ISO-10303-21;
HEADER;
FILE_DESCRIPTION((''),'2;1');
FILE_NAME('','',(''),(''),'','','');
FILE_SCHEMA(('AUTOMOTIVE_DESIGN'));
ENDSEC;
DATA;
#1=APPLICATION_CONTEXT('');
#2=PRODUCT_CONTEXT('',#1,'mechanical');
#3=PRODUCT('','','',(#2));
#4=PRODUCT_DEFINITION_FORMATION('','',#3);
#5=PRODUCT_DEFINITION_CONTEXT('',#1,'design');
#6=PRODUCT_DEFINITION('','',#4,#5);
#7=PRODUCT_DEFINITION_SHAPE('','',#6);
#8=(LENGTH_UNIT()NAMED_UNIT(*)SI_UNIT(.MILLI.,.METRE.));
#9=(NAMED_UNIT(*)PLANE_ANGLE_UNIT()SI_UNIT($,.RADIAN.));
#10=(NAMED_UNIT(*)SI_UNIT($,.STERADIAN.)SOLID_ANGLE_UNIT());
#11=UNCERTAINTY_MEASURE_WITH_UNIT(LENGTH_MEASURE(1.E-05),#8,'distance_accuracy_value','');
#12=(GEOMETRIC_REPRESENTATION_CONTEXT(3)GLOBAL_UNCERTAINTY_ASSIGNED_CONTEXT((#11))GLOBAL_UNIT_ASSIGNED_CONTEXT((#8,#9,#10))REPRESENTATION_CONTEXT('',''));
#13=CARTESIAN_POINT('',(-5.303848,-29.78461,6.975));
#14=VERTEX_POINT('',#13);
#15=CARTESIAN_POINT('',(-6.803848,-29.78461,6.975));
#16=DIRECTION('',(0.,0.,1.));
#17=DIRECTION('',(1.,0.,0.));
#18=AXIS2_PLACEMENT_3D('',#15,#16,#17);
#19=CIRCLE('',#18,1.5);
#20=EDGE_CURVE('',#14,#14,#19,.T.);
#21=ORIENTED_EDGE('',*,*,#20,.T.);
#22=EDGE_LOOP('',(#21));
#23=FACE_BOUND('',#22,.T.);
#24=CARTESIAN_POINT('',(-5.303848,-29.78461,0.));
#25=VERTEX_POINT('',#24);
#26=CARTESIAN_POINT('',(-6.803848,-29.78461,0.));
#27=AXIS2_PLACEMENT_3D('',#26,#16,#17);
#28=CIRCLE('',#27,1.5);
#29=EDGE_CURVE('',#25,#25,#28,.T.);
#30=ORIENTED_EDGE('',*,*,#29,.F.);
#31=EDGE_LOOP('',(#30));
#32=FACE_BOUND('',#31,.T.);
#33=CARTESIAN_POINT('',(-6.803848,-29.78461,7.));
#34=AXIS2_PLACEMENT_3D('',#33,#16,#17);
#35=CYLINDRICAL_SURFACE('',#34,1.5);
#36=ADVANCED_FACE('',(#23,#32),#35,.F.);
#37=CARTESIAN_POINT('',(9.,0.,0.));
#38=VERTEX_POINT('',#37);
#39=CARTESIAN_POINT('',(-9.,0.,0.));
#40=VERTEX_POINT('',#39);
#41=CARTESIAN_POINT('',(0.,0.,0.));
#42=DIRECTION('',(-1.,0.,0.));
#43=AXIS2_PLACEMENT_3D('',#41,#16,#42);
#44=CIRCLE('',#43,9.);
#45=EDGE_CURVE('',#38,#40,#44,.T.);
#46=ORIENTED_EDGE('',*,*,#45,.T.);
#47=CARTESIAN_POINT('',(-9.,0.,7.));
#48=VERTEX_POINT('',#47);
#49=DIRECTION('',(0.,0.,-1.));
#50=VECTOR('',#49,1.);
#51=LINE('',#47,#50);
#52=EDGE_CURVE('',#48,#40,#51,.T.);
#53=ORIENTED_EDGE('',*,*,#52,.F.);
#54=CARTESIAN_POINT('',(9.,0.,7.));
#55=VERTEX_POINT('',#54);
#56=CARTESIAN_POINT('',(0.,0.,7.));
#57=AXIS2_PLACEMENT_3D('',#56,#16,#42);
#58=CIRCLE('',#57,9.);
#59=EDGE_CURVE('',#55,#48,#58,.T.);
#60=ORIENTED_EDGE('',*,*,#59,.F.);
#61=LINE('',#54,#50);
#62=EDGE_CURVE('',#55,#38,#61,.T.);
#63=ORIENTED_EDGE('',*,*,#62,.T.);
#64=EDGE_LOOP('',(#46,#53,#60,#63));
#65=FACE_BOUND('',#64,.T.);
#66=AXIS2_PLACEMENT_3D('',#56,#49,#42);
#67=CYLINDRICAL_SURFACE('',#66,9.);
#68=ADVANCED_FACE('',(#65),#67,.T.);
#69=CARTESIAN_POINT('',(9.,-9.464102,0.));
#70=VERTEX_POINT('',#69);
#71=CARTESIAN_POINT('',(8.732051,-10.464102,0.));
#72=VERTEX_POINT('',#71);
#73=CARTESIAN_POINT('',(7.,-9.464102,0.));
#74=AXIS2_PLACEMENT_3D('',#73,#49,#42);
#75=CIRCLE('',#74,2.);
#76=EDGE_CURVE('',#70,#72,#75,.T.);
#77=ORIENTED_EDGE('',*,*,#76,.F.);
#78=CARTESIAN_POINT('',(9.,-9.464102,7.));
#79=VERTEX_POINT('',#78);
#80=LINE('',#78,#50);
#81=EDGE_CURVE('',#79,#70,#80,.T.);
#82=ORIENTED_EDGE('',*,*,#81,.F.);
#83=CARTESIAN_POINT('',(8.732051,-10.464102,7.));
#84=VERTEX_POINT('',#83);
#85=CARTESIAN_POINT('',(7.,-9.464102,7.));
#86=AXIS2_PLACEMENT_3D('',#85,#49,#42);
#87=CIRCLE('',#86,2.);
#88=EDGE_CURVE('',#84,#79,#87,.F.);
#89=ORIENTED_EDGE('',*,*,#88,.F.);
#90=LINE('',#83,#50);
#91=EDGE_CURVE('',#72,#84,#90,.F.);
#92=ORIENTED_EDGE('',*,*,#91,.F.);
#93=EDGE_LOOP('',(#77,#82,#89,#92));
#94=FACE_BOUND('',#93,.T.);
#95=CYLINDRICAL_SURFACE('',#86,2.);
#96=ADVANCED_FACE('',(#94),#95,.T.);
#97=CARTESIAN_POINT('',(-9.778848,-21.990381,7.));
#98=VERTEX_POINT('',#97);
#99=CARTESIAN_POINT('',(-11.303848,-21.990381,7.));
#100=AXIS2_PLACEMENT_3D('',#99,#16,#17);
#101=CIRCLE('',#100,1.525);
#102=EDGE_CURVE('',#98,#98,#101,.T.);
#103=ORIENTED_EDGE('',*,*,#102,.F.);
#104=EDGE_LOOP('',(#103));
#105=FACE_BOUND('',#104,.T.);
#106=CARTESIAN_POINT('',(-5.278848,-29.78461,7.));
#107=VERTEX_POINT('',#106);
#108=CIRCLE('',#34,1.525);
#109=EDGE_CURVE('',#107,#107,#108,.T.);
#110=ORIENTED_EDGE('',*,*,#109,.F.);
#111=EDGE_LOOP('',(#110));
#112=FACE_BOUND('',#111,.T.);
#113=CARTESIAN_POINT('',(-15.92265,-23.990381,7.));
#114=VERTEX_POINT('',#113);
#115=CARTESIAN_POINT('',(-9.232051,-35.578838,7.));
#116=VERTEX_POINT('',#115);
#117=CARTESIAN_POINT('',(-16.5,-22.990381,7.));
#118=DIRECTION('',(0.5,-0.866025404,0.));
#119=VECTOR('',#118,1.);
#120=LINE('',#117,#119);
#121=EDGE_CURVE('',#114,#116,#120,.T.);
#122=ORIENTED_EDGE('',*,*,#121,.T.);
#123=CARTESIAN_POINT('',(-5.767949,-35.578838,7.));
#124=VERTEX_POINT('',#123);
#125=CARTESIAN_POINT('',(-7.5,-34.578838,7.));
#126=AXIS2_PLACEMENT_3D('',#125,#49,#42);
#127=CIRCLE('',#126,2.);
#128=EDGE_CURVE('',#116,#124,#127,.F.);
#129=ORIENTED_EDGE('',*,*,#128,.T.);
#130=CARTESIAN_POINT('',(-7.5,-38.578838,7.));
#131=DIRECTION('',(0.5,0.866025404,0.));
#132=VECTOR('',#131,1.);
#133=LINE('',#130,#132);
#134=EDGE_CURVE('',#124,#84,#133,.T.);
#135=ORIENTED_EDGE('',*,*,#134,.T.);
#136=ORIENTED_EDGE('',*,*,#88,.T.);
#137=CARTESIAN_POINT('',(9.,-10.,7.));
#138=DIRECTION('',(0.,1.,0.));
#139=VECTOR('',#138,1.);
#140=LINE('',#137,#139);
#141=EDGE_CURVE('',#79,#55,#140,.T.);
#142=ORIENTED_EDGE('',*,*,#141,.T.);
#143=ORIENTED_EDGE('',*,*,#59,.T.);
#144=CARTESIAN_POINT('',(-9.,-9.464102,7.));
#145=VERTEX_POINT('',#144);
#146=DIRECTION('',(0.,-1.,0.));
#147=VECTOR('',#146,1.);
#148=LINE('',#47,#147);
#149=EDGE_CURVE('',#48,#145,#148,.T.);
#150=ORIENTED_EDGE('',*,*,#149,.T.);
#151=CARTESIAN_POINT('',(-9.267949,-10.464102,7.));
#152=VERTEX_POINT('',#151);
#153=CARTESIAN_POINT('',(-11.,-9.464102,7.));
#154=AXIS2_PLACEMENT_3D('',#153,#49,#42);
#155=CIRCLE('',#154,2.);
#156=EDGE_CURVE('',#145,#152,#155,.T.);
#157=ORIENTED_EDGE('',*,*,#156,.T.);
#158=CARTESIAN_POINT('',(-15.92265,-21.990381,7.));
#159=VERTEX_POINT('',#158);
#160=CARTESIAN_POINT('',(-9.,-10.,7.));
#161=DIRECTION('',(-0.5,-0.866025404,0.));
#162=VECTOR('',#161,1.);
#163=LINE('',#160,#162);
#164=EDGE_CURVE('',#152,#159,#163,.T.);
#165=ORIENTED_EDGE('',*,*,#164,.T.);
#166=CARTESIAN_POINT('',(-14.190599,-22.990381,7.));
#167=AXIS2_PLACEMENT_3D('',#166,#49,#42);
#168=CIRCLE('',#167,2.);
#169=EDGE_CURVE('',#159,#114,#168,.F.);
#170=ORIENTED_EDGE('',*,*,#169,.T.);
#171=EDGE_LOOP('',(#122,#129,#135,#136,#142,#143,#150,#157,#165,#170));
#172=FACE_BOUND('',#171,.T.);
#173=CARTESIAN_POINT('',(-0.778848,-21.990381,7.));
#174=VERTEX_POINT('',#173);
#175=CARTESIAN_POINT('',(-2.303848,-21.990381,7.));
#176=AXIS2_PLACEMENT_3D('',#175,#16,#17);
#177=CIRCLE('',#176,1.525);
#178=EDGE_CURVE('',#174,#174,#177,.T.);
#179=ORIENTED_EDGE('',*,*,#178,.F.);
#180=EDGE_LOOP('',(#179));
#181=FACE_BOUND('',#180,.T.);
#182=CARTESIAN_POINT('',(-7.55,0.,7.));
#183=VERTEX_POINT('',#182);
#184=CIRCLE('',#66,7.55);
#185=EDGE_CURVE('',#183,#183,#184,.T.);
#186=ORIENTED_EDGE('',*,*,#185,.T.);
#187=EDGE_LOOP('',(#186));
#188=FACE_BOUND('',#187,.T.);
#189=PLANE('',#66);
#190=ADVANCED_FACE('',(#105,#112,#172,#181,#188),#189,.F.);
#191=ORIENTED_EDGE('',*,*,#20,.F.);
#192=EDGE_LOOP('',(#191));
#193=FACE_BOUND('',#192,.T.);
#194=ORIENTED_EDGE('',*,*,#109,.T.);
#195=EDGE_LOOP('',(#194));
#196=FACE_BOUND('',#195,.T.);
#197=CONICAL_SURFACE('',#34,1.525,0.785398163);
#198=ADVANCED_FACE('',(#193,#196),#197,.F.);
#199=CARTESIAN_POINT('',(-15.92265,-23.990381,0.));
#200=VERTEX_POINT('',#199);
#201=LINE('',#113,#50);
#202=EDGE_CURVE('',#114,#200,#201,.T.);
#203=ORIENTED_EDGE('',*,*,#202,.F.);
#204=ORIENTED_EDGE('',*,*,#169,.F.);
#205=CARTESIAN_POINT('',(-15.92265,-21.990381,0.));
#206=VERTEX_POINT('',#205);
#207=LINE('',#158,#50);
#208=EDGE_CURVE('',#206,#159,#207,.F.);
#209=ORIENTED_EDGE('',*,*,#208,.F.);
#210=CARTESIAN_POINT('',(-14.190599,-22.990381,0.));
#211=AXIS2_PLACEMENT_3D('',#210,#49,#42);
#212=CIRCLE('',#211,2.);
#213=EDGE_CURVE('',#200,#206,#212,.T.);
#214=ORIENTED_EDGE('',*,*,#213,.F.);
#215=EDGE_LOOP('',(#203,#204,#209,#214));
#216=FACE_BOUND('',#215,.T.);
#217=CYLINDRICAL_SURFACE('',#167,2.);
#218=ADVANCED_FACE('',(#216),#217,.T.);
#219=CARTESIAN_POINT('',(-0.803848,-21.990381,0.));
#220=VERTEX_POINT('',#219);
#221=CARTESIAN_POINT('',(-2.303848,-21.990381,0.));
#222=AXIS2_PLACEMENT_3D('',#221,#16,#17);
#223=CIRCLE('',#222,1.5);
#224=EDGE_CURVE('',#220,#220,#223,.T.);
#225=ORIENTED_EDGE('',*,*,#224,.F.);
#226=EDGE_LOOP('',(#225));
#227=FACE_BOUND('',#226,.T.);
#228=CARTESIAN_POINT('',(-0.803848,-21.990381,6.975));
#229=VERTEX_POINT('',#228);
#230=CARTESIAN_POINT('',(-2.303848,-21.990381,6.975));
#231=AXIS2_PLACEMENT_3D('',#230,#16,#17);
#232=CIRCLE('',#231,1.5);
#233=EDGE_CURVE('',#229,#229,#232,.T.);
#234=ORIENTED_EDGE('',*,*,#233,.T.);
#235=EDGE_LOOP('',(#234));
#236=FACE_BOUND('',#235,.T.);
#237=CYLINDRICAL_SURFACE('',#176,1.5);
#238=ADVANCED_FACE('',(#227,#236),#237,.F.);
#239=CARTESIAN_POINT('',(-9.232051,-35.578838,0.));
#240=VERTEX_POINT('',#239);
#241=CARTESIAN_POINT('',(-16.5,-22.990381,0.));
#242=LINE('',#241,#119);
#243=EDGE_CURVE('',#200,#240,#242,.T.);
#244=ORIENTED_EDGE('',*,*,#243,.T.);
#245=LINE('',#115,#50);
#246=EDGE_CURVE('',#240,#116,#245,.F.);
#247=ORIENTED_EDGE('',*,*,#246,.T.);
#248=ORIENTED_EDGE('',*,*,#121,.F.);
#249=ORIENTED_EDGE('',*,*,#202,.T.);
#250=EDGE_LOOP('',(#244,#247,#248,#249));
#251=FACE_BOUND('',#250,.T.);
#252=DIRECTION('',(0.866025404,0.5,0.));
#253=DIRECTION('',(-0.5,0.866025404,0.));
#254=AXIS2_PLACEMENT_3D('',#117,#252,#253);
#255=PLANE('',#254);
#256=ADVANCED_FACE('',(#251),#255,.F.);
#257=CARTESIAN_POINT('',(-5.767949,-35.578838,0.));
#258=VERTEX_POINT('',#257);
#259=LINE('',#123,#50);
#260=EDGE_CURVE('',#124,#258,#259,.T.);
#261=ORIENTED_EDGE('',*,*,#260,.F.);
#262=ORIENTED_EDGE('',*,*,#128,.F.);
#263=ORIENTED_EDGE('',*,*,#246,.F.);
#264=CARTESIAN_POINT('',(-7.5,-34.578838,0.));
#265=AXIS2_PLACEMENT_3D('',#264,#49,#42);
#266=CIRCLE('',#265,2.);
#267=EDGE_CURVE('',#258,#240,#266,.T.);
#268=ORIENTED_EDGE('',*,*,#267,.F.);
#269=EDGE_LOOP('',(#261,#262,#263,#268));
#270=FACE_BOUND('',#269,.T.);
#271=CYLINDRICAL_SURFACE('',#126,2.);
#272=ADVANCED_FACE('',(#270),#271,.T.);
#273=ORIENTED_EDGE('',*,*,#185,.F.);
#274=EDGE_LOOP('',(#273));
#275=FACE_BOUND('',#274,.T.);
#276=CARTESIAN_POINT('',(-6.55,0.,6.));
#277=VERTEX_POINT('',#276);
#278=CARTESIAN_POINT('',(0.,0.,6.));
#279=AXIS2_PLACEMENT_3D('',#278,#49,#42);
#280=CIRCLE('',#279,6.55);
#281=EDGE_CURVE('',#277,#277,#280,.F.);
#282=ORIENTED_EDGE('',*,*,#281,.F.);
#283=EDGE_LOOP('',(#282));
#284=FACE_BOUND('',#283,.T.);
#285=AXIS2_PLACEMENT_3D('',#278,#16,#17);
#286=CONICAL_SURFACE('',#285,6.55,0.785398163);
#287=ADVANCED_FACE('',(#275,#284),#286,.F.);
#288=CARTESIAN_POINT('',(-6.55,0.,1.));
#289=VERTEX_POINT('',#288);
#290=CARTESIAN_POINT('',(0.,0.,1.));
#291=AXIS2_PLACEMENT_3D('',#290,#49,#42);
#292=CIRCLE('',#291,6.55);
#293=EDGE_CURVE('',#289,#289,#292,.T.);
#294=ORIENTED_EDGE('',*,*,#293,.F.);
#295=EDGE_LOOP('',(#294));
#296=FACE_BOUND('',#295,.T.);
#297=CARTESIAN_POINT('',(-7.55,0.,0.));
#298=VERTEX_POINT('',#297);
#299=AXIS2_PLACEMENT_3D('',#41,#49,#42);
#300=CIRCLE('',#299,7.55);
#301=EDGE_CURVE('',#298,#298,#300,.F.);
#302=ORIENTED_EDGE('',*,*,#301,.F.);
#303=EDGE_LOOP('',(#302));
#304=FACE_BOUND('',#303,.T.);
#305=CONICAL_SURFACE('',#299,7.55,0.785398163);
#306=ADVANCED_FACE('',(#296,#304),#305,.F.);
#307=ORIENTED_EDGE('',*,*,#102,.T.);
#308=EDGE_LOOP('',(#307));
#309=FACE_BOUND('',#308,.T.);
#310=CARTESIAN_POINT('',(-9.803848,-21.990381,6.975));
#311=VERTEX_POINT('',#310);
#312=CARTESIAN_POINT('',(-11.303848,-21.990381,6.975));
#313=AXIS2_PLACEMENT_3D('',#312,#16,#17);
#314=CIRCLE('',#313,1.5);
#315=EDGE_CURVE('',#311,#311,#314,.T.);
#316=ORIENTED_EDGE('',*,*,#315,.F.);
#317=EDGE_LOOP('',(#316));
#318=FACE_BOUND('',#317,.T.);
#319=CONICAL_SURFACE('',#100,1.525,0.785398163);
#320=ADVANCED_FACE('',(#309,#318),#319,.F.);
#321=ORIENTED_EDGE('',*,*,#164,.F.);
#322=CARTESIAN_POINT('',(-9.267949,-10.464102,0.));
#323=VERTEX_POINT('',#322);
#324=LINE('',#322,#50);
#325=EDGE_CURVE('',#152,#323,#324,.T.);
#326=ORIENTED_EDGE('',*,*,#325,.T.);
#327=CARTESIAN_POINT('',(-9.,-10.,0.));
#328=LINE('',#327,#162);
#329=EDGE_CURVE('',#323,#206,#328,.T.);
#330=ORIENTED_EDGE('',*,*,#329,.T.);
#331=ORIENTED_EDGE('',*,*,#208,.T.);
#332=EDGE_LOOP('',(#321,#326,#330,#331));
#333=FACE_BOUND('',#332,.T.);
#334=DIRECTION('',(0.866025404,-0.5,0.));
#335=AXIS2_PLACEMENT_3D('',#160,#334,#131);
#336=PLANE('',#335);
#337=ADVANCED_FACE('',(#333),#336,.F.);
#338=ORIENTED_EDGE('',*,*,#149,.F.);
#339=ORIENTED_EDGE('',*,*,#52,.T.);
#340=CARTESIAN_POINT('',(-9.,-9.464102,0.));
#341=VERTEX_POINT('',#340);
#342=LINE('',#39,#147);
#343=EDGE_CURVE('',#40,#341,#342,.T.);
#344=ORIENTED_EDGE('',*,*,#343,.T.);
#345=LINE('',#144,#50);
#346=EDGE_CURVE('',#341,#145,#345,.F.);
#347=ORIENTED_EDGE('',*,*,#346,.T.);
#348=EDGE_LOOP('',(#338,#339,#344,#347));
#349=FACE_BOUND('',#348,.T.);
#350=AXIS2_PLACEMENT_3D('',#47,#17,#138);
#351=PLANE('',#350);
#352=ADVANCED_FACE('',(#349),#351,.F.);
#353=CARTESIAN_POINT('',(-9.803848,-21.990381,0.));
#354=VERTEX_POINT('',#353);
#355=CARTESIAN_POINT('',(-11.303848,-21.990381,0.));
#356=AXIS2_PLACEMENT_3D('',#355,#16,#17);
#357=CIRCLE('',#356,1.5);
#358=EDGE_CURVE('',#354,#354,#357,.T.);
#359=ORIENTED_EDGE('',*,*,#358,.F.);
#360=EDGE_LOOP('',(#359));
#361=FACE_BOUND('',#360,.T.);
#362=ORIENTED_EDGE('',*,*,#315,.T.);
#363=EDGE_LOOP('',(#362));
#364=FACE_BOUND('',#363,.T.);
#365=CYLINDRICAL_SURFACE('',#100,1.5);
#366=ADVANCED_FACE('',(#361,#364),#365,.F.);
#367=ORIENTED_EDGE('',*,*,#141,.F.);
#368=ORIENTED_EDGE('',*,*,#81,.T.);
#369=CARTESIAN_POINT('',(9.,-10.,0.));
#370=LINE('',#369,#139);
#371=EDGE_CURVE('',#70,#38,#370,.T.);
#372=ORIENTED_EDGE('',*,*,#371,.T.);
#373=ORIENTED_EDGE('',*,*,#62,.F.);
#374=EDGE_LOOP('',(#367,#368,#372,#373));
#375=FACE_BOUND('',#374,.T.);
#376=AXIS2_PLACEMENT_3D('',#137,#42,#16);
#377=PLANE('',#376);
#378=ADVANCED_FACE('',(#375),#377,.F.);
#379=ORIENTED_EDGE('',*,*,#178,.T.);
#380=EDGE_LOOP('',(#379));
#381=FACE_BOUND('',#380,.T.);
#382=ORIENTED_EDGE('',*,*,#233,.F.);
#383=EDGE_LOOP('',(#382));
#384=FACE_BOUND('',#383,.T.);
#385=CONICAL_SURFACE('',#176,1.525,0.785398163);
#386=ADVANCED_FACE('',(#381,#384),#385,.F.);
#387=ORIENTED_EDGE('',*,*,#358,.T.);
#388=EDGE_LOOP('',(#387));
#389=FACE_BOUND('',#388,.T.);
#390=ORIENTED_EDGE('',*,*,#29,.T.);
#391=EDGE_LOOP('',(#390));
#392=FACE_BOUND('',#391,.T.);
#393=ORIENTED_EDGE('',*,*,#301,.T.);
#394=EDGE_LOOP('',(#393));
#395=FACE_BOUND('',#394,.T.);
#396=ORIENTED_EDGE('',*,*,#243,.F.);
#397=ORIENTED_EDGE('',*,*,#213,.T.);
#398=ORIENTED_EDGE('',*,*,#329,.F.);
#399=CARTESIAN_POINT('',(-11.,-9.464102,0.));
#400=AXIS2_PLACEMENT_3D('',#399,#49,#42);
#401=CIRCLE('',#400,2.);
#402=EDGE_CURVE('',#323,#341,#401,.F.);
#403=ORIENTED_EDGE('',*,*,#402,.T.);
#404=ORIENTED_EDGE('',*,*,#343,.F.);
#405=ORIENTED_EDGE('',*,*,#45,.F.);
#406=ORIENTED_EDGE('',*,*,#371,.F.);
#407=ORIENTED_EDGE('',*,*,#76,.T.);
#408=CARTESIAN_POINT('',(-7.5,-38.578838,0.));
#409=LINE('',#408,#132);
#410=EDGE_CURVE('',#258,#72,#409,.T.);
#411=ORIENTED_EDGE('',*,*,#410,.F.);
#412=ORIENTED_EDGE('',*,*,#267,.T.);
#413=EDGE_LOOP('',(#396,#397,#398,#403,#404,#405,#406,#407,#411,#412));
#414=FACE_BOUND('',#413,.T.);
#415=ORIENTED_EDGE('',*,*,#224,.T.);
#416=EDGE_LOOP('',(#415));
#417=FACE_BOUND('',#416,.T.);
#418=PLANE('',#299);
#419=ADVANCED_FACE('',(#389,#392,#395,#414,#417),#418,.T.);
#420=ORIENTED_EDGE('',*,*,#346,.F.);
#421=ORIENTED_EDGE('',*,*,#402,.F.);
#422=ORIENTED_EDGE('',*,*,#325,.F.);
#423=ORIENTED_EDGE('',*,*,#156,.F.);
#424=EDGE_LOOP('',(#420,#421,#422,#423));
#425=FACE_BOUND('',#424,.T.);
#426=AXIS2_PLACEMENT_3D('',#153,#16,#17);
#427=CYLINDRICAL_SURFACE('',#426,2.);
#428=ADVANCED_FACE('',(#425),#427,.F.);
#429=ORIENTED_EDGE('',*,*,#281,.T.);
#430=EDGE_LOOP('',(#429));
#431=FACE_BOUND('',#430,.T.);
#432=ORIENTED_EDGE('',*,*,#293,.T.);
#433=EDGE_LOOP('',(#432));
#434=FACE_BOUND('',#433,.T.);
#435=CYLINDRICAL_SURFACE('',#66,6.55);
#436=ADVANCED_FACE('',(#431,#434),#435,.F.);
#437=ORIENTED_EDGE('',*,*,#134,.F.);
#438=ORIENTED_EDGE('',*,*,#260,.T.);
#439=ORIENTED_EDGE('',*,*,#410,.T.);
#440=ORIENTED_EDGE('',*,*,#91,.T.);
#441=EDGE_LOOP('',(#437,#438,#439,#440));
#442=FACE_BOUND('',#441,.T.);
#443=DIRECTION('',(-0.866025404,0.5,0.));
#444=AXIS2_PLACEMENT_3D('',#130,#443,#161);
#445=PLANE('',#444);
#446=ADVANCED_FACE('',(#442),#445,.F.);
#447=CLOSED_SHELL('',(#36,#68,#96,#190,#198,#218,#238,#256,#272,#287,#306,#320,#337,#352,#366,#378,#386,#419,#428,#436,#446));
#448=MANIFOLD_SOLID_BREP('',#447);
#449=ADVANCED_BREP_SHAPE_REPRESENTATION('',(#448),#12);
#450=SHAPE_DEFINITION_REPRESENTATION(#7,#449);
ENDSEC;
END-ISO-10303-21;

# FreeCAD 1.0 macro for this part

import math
import FreeCAD as App
import Part
import Sketcher
from FreeCAD import Vector
Q = App.Units.Quantity


def edges_at(feature, points):
    """Names of the edges that pass closest to the given points."""
    edges = feature.Shape.Edges
    near = lambda p: min(range(len(edges)), key=lambda i: edges[i].distToShape(Part.Vertex(*p))[0])
    return sorted({f"Edge{near(p) + 1}" for p in points})

doc = App.newDocument("Part")
body = doc.addObject("PartDesign::Body", "Body")

# Sketch on XY plane
sketch1 = doc.addObject("Sketcher::SketchObject", "Sketch")
body.addObject(sketch1)
sketch1.AttachmentSupport = (doc.XY_Plane, [""])
sketch1.MapMode = "FlatFace"
sketch1.addGeometry([
    Part.LineSegment(Vector(-9, 0, 0), Vector(-9, -10, 0)),  # 0
    Part.LineSegment(Vector(-9, -10, 0), Vector(-16, -23, 0)),  # 1
    Part.LineSegment(Vector(-16, -23, 0), Vector(-8, -39, 0)),  # 2
    Part.LineSegment(Vector(-8, -39, 0), Vector(9, -10, 0)),  # 3
    Part.LineSegment(Vector(9, -10, 0), Vector(9, 0, 0)),  # 4
    Part.ArcOfCircle(Part.Circle(Vector(0, 0, 0), Vector(0, 0, 1), 9), math.radians(0), math.radians(180)),  # 5
    Part.Circle(Vector(0, 0, 0), Vector(0, 0, 1), 7),  # 6
], False)
sketch1.addConstraint([
    Sketcher.Constraint("Coincident", 0, 2, 1, 1),
    Sketcher.Constraint("Coincident", 1, 2, 2, 1),
    Sketcher.Constraint("Coincident", 2, 2, 3, 1),
    Sketcher.Constraint("Coincident", 3, 2, 4, 1),
    Sketcher.Constraint("Tangent", 4, 2, 5, 1),
    Sketcher.Constraint("Tangent", 5, 2, 0, 1),
    Sketcher.Constraint("Vertical", 0),
    Sketcher.Constraint("Vertical", 4),
    Sketcher.Constraint("Coincident", 5, 3, -1, 1),
    Sketcher.Constraint("Coincident", 6, 3, -1, 1),
    Sketcher.Constraint("Parallel", 1, 3),
    Sketcher.Constraint("Horizontal", 0, 2, 3, 2),
    Sketcher.Constraint("Radius", 5, 9.0),
    Sketcher.Constraint("Diameter", 6, 13.1),
    Sketcher.Constraint("DistanceY", 0, 2, 0, 1, 10.0),
    Sketcher.Constraint("Angle", 1, Q("-120 deg")),
    Sketcher.Constraint("Angle", 2, Q("-60 deg")),
    Sketcher.Constraint("Distance", 1, 15.0),
])
pad1 = doc.addObject("PartDesign::Pad", "Pad")
body.addObject(pad1)
pad1.Profile = sketch1
pad1.Length = 7
doc.recompute()

chamfer = doc.addObject("PartDesign::Chamfer", "Chamfer")
body.addObject(chamfer)
chamfer.Base = (pad1, edges_at(pad1, [(-6.55, 0, 0), (-6.55, 0, 7)]))
chamfer.Size = 1
doc.recompute()

fillet = doc.addObject("PartDesign::Fillet", "Fillet")
body.addObject(fillet)
fillet.Base = (chamfer, edges_at(chamfer, [
    (9, -10, 3.5),
    (-7.5, -38.579, 3.5),
    (-16.5, -22.99, 3.5),
    (-9, -10, 3.5),
]))
fillet.Radius = 2

# Sketch on XY plane
sketch2 = doc.addObject("Sketcher::SketchObject", "Sketch001")
body.addObject(sketch2)
sketch2.AttachmentSupport = (doc.XY_Plane, [""])
sketch2.MapMode = "FlatFace"
sketch2.AttachmentOffset = App.Placement(Vector(0, 0, 7), App.Rotation())
sketch2.addGeometry([
    Part.Circle(Vector(-11.3, -22, 0), Vector(0, 0, 1), 1.5),
    Part.Circle(Vector(-6.8, -29.8, 0), Vector(0, 0, 1), 1.5),
    Part.Circle(Vector(-2.3, -22, 0), Vector(0, 0, 1), 1.5),
], False)
sketch2.addConstraint([
    Sketcher.Constraint("Equal", 0, 1),
    Sketcher.Constraint("Equal", 1, 2),
    Sketcher.Constraint("Horizontal", 0, 3, 2, 3),
    Sketcher.Constraint("Diameter", 0, 3.0),
    Sketcher.Constraint("DistanceX", 0, 3, 2, 3, 9.0),
    Sketcher.Constraint("DistanceX", 0, 3, 1, 3, 4.5),
    Sketcher.Constraint("DistanceY", 0, 3, -1, 1, 21.990381),
    Sketcher.Constraint("DistanceY", 1, 3, -1, 1, 29.78461),
    Sketcher.Constraint("DistanceX", 0, 3, -1, 1, 11.303848),
])
doc.recompute()
hole = doc.addObject("PartDesign::Hole", "Hole")
body.addObject(hole)
hole.Profile = sketch2
hole.ThreadType = "None"
hole.Diameter = 3
hole.DepthType = "ThroughAll"
hole.HoleCutType = "Countersink"
hole.HoleCutDiameter = 3.05
hole.HoleCutCountersinkAngle = 90

doc.recompute()
